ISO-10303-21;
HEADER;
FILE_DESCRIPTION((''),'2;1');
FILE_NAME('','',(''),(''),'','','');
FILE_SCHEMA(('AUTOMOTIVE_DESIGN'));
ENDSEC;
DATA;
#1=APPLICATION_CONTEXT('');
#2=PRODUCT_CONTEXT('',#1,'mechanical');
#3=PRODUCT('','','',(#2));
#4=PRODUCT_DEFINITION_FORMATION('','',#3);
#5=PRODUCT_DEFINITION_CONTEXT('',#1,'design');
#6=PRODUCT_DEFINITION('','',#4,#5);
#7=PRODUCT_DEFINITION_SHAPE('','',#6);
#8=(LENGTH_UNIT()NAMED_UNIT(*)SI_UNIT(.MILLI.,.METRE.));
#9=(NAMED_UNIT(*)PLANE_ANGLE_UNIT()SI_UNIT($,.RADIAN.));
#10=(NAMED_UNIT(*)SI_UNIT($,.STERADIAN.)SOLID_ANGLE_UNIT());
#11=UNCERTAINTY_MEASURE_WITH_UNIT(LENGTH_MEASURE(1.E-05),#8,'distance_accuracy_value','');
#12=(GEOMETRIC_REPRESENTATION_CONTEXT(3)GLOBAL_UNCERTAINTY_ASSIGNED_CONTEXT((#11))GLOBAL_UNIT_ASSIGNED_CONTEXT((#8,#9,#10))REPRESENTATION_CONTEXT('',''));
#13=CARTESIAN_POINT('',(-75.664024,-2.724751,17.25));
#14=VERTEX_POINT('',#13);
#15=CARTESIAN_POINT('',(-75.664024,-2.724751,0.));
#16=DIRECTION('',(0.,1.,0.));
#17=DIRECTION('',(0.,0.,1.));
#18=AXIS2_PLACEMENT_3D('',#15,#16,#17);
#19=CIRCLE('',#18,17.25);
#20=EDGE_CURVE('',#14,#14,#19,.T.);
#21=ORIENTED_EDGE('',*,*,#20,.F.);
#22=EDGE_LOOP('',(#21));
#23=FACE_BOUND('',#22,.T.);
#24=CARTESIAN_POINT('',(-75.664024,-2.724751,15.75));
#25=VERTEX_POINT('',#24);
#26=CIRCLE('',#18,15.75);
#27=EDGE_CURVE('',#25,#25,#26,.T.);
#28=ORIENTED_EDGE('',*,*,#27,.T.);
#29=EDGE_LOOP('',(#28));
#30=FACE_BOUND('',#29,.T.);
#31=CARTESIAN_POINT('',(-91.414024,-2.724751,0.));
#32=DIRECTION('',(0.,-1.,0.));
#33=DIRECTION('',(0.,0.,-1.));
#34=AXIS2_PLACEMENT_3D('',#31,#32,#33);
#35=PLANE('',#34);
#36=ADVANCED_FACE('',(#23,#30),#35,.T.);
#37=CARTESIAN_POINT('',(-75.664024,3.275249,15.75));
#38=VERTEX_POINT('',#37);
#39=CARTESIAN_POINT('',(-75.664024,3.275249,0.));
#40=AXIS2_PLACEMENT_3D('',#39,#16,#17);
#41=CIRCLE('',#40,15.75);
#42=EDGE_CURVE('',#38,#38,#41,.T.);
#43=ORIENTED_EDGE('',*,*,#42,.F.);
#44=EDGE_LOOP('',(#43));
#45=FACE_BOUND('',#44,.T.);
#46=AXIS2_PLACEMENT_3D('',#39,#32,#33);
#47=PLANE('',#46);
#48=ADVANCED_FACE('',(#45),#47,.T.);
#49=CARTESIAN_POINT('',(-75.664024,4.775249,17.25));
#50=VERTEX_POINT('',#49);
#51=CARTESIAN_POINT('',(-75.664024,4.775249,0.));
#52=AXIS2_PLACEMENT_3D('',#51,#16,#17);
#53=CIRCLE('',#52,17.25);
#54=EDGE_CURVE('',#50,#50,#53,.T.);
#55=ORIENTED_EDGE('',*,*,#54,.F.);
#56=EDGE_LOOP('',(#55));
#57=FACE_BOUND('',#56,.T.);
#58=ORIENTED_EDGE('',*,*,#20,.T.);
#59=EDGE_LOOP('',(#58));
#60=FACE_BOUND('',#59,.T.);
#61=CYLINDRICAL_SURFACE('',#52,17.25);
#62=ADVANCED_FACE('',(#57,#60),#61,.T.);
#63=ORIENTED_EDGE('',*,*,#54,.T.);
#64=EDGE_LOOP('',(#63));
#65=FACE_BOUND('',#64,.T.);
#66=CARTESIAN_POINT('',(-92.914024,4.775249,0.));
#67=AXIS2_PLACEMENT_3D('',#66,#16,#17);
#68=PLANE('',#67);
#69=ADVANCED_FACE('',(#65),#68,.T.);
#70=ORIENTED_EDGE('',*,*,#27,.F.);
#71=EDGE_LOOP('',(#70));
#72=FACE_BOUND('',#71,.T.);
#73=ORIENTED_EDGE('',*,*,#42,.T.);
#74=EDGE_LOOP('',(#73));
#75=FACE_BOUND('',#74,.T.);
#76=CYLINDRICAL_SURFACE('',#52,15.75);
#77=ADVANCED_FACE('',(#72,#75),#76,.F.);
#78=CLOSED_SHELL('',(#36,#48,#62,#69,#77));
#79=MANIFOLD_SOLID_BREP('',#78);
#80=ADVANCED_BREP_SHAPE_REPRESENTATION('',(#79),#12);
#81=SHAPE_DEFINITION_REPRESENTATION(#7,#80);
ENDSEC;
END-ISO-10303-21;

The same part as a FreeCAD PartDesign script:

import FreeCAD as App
import Part
import Sketcher
Q = App.Units.Quantity

doc = App.newDocument("Part")
body = doc.addObject("PartDesign::Body", "Body")

sketch1 = body.newObject("Sketcher::SketchObject", "Sketch")
sketch1.AttachmentSupport = (doc.getObject("XY_Plane"), [""])
sketch1.MapMode = "FlatFace"
sketch1.addGeometry([
    Part.LineSegment(App.Vector(-92.914024, -2.724751, 0), App.Vector(-91.414024, -2.724751, 0)),
    Part.LineSegment(App.Vector(-91.414024, -2.724751, 0), App.Vector(-91.414024, 3.275249, 0)),
    Part.LineSegment(App.Vector(-91.414024, 3.275249, 0), App.Vector(-75.664024, 3.275249, 0)),
    Part.LineSegment(App.Vector(-75.664024, 3.275249, 0), App.Vector(-75.664024, 4.775249, 0)),
    Part.LineSegment(App.Vector(-75.664024, 4.775249, 0), App.Vector(-92.914024, 4.775249, 0)),
    Part.LineSegment(App.Vector(-92.914024, 4.775249, 0), App.Vector(-92.914024, -2.724751, 0)),
], False)
sketch1.addGeometry(Part.LineSegment(App.Vector(-75.664024, 4.775249, 0), App.Vector(-75.664024, -2.724751, 0)), True)
sketch1.addConstraint([
    Sketcher.Constraint("Coincident", 0, 2, 1, 1),
    Sketcher.Constraint("Coincident", 1, 2, 2, 1),
    Sketcher.Constraint("Coincident", 2, 2, 3, 1),
    Sketcher.Constraint("Coincident", 3, 2, 4, 1),
    Sketcher.Constraint("Coincident", 4, 2, 5, 1),
    Sketcher.Constraint("Coincident", 5, 2, 0, 1),
    Sketcher.Constraint("Horizontal", 0),
    Sketcher.Constraint("Vertical", 1),
    Sketcher.Constraint("Horizontal", 2),
    Sketcher.Constraint("Vertical", 3),
    Sketcher.Constraint("Horizontal", 4),
    Sketcher.Constraint("Vertical", 5),
    Sketcher.Constraint("Vertical", 6),
    Sketcher.Constraint("Coincident", 6, 1, 3, 2),
    Sketcher.Constraint("Horizontal", 5, 2, 6, 2),
    Sketcher.Constraint("Equal", 0, 3),
    Sketcher.Constraint("DistanceY", 1, 1, 1, 2, Q("6 mm")),
    Sketcher.Constraint("DistanceX", 0, 1, 0, 2, Q("1.5 mm")),
    Sketcher.Constraint("DistanceX", 2, 1, 2, 2, Q("15.75 mm")),
    Sketcher.Constraint("DistanceY", 0, 2, -1, 1, Q("2.724751 mm")),
    Sketcher.Constraint("DistanceX", 0, 2, -1, 1, Q("91.414024 mm")),
])
revolution = body.newObject("PartDesign::Revolution", "Revolution")
revolution.Profile = sketch1
revolution.ReferenceAxis = (sketch1, ["Axis0"])
revolution.Angle = 360

doc.recompute()
